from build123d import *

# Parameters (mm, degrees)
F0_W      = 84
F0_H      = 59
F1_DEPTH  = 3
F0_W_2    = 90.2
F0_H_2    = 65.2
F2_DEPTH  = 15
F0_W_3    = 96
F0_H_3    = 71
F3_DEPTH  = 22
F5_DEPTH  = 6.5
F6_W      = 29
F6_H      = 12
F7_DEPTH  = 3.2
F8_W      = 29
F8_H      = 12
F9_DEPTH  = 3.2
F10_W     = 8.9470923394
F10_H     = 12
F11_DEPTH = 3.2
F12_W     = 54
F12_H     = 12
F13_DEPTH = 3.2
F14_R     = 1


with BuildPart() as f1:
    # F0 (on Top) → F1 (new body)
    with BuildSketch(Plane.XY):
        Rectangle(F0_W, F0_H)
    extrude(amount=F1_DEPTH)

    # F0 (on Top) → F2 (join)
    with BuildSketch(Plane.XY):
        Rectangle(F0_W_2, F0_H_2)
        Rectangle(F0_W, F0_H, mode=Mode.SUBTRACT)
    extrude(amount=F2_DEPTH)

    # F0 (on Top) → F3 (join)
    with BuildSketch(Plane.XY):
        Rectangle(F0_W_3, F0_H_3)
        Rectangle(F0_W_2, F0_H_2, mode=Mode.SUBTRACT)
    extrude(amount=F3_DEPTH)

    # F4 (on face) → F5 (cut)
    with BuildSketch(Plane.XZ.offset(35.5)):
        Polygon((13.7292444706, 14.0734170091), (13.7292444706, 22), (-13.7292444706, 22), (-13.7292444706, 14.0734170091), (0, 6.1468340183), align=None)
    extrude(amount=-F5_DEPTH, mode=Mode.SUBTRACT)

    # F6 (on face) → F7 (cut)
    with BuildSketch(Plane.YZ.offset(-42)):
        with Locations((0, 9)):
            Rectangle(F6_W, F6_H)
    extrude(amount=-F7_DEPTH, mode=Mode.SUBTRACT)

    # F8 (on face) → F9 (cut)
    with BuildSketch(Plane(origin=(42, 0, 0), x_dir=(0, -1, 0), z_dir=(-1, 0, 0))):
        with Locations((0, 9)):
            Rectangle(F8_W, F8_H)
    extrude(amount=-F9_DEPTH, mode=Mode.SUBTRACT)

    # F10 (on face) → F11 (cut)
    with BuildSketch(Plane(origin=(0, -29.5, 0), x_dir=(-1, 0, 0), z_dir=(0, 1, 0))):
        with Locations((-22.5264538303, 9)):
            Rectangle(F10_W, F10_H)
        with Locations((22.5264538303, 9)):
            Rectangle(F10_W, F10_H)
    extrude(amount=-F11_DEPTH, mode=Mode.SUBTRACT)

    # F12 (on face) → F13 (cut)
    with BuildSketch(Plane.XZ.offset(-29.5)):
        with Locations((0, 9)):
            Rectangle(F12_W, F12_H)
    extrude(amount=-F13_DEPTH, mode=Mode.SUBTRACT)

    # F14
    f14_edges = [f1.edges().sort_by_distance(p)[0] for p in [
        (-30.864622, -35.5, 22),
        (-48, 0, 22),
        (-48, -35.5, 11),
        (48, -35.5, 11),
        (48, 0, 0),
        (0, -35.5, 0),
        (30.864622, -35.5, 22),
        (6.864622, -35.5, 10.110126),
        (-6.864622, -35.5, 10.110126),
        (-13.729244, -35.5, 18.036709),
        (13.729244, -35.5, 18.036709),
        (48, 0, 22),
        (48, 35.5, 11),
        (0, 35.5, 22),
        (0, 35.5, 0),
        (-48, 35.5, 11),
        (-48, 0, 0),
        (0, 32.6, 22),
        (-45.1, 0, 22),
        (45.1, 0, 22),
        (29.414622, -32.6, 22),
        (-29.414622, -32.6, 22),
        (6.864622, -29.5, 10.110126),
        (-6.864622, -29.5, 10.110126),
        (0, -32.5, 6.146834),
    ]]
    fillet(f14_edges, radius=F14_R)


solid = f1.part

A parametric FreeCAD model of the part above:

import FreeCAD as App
import Part
import Sketcher
from FreeCAD import Vector
Q = App.Units.Quantity


def edges_at(feature, points):
    """Names of the edges that pass closest to the given points."""
    edges = feature.Shape.Edges
    near = lambda p: min(range(len(edges)), key=lambda i: edges[i].distToShape(Part.Vertex(*p))[0])
    return sorted({f"Edge{near(p) + 1}" for p in points})


def add_polygon(sketch, points):
    """Adds a closed chain of lines whose ends are joined by coincident constraints."""
    first, n = sketch.GeometryCount, len(points)
    for a, b in zip(points, points[1:] + points[:1]):
        sketch.addGeometry(Part.LineSegment(App.Vector(*a, 0), App.Vector(*b, 0)), False)
    for i in range(n):
        sketch.addConstraint(Sketcher.Constraint("Coincident", first + i, 2, first + (i + 1) % n, 1))

doc = App.newDocument("Part")
body = doc.addObject("PartDesign::Body", "Body")

sketch1 = body.newObject("Sketcher::SketchObject", "Sketch")
sketch1.AttachmentSupport = (doc.getObject("XY_Plane"), [""])
sketch1.MapMode = "FlatFace"
add_polygon(sketch1, [(-42, 30), (-42, -30), (42, -30), (42, 30)])
sketch1.addConstraint(Sketcher.Constraint("Vertical", 0))
sketch1.addConstraint(Sketcher.Constraint("Horizontal", 1))
sketch1.addConstraint(Sketcher.Constraint("Vertical", 2))
sketch1.addConstraint(Sketcher.Constraint("Horizontal", 3))
sketch1.addConstraint(Sketcher.Constraint("Symmetric", 0, 2, 2, 2, -1, 1))
sketch1.addConstraint(Sketcher.Constraint("DistanceX", 1, 1, 1, 2, 84.0))
sketch1.addConstraint(Sketcher.Constraint("DistanceY", 0, 2, 0, 1, 59.0))
pad1 = body.newObject("PartDesign::Pad", "Pad")
pad1.Profile = sketch1
pad1.Length = 3

sketch2 = body.newObject("Sketcher::SketchObject", "Sketch001")
sketch2.AttachmentSupport = (doc.getObject("XY_Plane"), [""])
sketch2.MapMode = "FlatFace"
add_polygon(sketch2, [(-45, 33), (-45, -33), (45, -33), (45, 33)])
add_polygon(sketch2, [(42, -30), (-42, -30), (-42, 30), (42, 30)])
sketch2.addConstraint(Sketcher.Constraint("Vertical", 0))
sketch2.addConstraint(Sketcher.Constraint("Horizontal", 1))
sketch2.addConstraint(Sketcher.Constraint("Vertical", 2))
sketch2.addConstraint(Sketcher.Constraint("Horizontal", 3))
sketch2.addConstraint(Sketcher.Constraint("Horizontal", 4))
sketch2.addConstraint(Sketcher.Constraint("Vertical", 5))
sketch2.addConstraint(Sketcher.Constraint("Horizontal", 6))
sketch2.addConstraint(Sketcher.Constraint("Vertical", 7))
sketch2.addConstraint(Sketcher.Constraint("Symmetric", 0, 2, 2, 2, -1, 1))
sketch2.addConstraint(Sketcher.Constraint("Symmetric", 4, 2, 6, 2, -1, 1))
sketch2.addConstraint(Sketcher.Constraint("DistanceX", 4, 2, 4, 1, 84.0))
sketch2.addConstraint(Sketcher.Constraint("DistanceY", 5, 1, 5, 2, 59.0))
sketch2.addConstraint(Sketcher.Constraint("DistanceX", 1, 1, 1, 2, 90.2))
sketch2.addConstraint(Sketcher.Constraint("DistanceY", 0, 2, 0, 1, 65.2))
pad2 = body.newObject("PartDesign::Pad", "Pad001")
pad2.Profile = sketch2
pad2.Length = 15

sketch3 = body.newObject("Sketcher::SketchObject", "Sketch002")
sketch3.AttachmentSupport = (doc.getObject("XY_Plane"), [""])
sketch3.MapMode = "FlatFace"
add_polygon(sketch3, [(-48, 36), (-48, -36), (48, -36), (48, 36)])
add_polygon(sketch3, [(45, -33), (-45, -33), (-45, 33), (45, 33)])
sketch3.addConstraint(Sketcher.Constraint("Vertical", 0))
sketch3.addConstraint(Sketcher.Constraint("Horizontal", 1))
sketch3.addConstraint(Sketcher.Constraint("Vertical", 2))
sketch3.addConstraint(Sketcher.Constraint("Horizontal", 3))
sketch3.addConstraint(Sketcher.Constraint("Horizontal", 4))
sketch3.addConstraint(Sketcher.Constraint("Vertical", 5))
sketch3.addConstraint(Sketcher.Constraint("Horizontal", 6))
sketch3.addConstraint(Sketcher.Constraint("Vertical", 7))
sketch3.addConstraint(Sketcher.Constraint("Symmetric", 0, 2, 2, 2, -1, 1))
sketch3.addConstraint(Sketcher.Constraint("Symmetric", 4, 2, 6, 2, -1, 1))
sketch3.addConstraint(Sketcher.Constraint("DistanceX", 1, 1, 1, 2, 96.0))
sketch3.addConstraint(Sketcher.Constraint("DistanceY", 0, 2, 0, 1, 71.0))
sketch3.addConstraint(Sketcher.Constraint("DistanceX", 4, 2, 4, 1, 90.2))
sketch3.addConstraint(Sketcher.Constraint("DistanceY", 5, 1, 5, 2, 65.2))
pad3 = body.newObject("PartDesign::Pad", "Pad002")
pad3.Profile = sketch3
pad3.Length = 22

sketch4 = body.newObject("Sketcher::SketchObject", "Sketch003")
sketch4.AttachmentSupport = (doc.getObject("XZ_Plane"), [""])
sketch4.MapMode = "FlatFace"
sketch4.AttachmentOffset = App.Placement(Vector(0, 0, 35.5), App.Rotation())
add_polygon(sketch4, [(14, 14), (14, 22), (-14, 22), (-14, 14), (0, 6)])
sketch4.addConstraint(Sketcher.Constraint("Vertical", 0))
sketch4.addConstraint(Sketcher.Constraint("Horizontal", 1))
sketch4.addConstraint(Sketcher.Constraint("Vertical", 2))
sketch4.addConstraint(Sketcher.Constraint("Symmetric", 2, 2, 4, 2, -2))
sketch4.addConstraint(Sketcher.Constraint("PointOnObject", 3, 2, -2))
sketch4.addConstraint(Sketcher.Constraint("Angle", 3, Q("-30 deg")))
sketch4.addConstraint(Sketcher.Constraint("DistanceY", -1, 1, 0, 2, 22.0))
sketch4.addConstraint(Sketcher.Constraint("DistanceX", 1, 2, 1, 1, 27.458489))
sketch4.addConstraint(Sketcher.Constraint("DistanceY", 0, 1, 0, 2, 7.926583))
pocket1 = body.newObject("PartDesign::Pocket", "Pocket")
pocket1.Profile = sketch4
pocket1.Length = 6.5

sketch5 = body.newObject("Sketcher::SketchObject", "Sketch004")
sketch5.AttachmentSupport = (doc.getObject("YZ_Plane"), [""])
sketch5.MapMode = "FlatFace"
sketch5.AttachmentOffset = App.Placement(Vector(0, 0, -42), App.Rotation())
add_polygon(sketch5, [(-14, 15), (-14, 3), (14, 3), (14, 15)])
sketch5.addConstraint(Sketcher.Constraint("Vertical", 0))
sketch5.addConstraint(Sketcher.Constraint("Horizontal", 1))
sketch5.addConstraint(Sketcher.Constraint("Vertical", 2))
sketch5.addConstraint(Sketcher.Constraint("Horizontal", 3))
sketch5.addConstraint(Sketcher.Constraint("DistanceX", 1, 1, 1, 2, 29.0))
sketch5.addConstraint(Sketcher.Constraint("DistanceY", 0, 2, 0, 1, 12.0))
sketch5.addConstraint(Sketcher.Constraint("DistanceY", -1, 1, 0, 2, 3.0))
sketch5.addConstraint(Sketcher.Constraint("DistanceX", 0, 2, -1, 1, 14.5))
pocket2 = body.newObject("PartDesign::Pocket", "Pocket001")
pocket2.Profile = sketch5
pocket2.Length = 3.2

sketch6 = body.newObject("Sketcher::SketchObject", "Sketch005")
sketch6.AttachmentSupport = (doc.getObject("YZ_Plane"), [""])
sketch6.MapMode = "FlatFace"
sketch6.AttachmentOffset = App.Placement(Vector(0, 0, 42), App.Rotation())
add_polygon(sketch6, [(14, 15), (14, 3), (-14, 3), (-14, 15)])
sketch6.addConstraint(Sketcher.Constraint("Vertical", 0))
sketch6.addConstraint(Sketcher.Constraint("Horizontal", 1))
sketch6.addConstraint(Sketcher.Constraint("Vertical", 2))
sketch6.addConstraint(Sketcher.Constraint("Horizontal", 3))
sketch6.addConstraint(Sketcher.Constraint("DistanceX", 1, 2, 1, 1, 29.0))
sketch6.addConstraint(Sketcher.Constraint("DistanceY", 0, 2, 0, 1, 12.0))
sketch6.addConstraint(Sketcher.Constraint("DistanceY", -1, 1, 0, 2, 3.0))
sketch6.addConstraint(Sketcher.Constraint("DistanceX", -1, 1, 0, 2, 14.5))
pocket3 = body.newObject("PartDesign::Pocket", "Pocket002")
pocket3.Profile = sketch6
pocket3.Length = 3.2
pocket3.Reversed = True

sketch7 = body.newObject("Sketcher::SketchObject", "Sketch006")
sketch7.AttachmentSupport = (doc.getObject("XZ_Plane"), [""])
sketch7.MapMode = "FlatFace"
sketch7.AttachmentOffset = App.Placement(Vector(0, 0, 29.5), App.Rotation())
add_polygon(sketch7, [(27, 15), (27, 3), (18, 3), (18, 15)])
add_polygon(sketch7, [(-18, 15), (-18, 3), (-27, 3), (-27, 15)])
sketch7.addConstraint(Sketcher.Constraint("Vertical", 0))
sketch7.addConstraint(Sketcher.Constraint("Horizontal", 1))
sketch7.addConstraint(Sketcher.Constraint("Vertical", 2))
sketch7.addConstraint(Sketcher.Constraint("Horizontal", 3))
sketch7.addConstraint(Sketcher.Constraint("Vertical", 4))
sketch7.addConstraint(Sketcher.Constraint("Horizontal", 5))
sketch7.addConstraint(Sketcher.Constraint("Vertical", 6))
sketch7.addConstraint(Sketcher.Constraint("Horizontal", 7))
sketch7.addConstraint(Sketcher.Constraint("Symmetric", 1, 2, 4, 2, -2))
sketch7.addConstraint(Sketcher.Constraint("Symmetric", 3, 2, 6, 2, -2))
sketch7.addConstraint(Sketcher.Constraint("DistanceY", 0, 2, 0, 1, 12.0))
sketch7.addConstraint(Sketcher.Constraint("DistanceX", -1, 1, 0, 2, 27.0))
sketch7.addConstraint(Sketcher.Constraint("DistanceY", -1, 1, 0, 2, 3.0))
sketch7.addConstraint(Sketcher.Constraint("DistanceX", 1, 2, 1, 1, 8.947092))
pocket4 = body.newObject("PartDesign::Pocket", "Pocket003")
pocket4.Profile = sketch7
pocket4.Length = 3.2
pocket4.Reversed = True

sketch8 = body.newObject("Sketcher::SketchObject", "Sketch007")
sketch8.AttachmentSupport = (doc.getObject("XZ_Plane"), [""])
sketch8.MapMode = "FlatFace"
sketch8.AttachmentOffset = App.Placement(Vector(0, 0, -29.5), App.Rotation())
add_polygon(sketch8, [(-27, 15), (-27, 3), (27, 3), (27, 15)])
sketch8.addConstraint(Sketcher.Constraint("Vertical", 0))
sketch8.addConstraint(Sketcher.Constraint("Horizontal", 1))
sketch8.addConstraint(Sketcher.Constraint("Vertical", 2))
sketch8.addConstraint(Sketcher.Constraint("Horizontal", 3))
sketch8.addConstraint(Sketcher.Constraint("DistanceX", 1, 1, 1, 2, 54.0))
sketch8.addConstraint(Sketcher.Constraint("DistanceY", 0, 2, 0, 1, 12.0))
sketch8.addConstraint(Sketcher.Constraint("DistanceX", 0, 2, -1, 1, 27.0))
sketch8.addConstraint(Sketcher.Constraint("DistanceY", -1, 1, 0, 2, 3.0))
pocket5 = body.newObject("PartDesign::Pocket", "Pocket004")
pocket5.Profile = sketch8
pocket5.Length = 3.2
doc.recompute()

fillet = body.newObject("PartDesign::Fillet", "Fillet")
fillet.Base = (pocket5, edges_at(pocket5, [
    (-30.865, -35.5, 22),
    (-48, 0, 22),
    (-48, -35.5, 11),
    (48, -35.5, 11),
    (48, 0, 0),
    (0, -35.5, 0),
    (30.865, -35.5, 22),
    (6.865, -35.5, 10.11),
    (-6.865, -35.5, 10.11),
    (-13.729, -35.5, 18.037),
    (13.729, -35.5, 18.037),
    (48, 0, 22),
    (48, 35.5, 11),
    (0, 35.5, 22),
    (0, 35.5, 0),
    (-48, 35.5, 11),
    (-48, 0, 0),
    (0, 32.6, 22),
    (-45.1, 0, 22),
    (45.1, 0, 22),
    (29.415, -32.6, 22),
    (-29.415, -32.6, 22),
    (6.865, -29.5, 10.11),
    (-6.865, -29.5, 10.11),
    (0, -32.5, 6.147),
]))
fillet.Radius = 1

doc.recompute()
